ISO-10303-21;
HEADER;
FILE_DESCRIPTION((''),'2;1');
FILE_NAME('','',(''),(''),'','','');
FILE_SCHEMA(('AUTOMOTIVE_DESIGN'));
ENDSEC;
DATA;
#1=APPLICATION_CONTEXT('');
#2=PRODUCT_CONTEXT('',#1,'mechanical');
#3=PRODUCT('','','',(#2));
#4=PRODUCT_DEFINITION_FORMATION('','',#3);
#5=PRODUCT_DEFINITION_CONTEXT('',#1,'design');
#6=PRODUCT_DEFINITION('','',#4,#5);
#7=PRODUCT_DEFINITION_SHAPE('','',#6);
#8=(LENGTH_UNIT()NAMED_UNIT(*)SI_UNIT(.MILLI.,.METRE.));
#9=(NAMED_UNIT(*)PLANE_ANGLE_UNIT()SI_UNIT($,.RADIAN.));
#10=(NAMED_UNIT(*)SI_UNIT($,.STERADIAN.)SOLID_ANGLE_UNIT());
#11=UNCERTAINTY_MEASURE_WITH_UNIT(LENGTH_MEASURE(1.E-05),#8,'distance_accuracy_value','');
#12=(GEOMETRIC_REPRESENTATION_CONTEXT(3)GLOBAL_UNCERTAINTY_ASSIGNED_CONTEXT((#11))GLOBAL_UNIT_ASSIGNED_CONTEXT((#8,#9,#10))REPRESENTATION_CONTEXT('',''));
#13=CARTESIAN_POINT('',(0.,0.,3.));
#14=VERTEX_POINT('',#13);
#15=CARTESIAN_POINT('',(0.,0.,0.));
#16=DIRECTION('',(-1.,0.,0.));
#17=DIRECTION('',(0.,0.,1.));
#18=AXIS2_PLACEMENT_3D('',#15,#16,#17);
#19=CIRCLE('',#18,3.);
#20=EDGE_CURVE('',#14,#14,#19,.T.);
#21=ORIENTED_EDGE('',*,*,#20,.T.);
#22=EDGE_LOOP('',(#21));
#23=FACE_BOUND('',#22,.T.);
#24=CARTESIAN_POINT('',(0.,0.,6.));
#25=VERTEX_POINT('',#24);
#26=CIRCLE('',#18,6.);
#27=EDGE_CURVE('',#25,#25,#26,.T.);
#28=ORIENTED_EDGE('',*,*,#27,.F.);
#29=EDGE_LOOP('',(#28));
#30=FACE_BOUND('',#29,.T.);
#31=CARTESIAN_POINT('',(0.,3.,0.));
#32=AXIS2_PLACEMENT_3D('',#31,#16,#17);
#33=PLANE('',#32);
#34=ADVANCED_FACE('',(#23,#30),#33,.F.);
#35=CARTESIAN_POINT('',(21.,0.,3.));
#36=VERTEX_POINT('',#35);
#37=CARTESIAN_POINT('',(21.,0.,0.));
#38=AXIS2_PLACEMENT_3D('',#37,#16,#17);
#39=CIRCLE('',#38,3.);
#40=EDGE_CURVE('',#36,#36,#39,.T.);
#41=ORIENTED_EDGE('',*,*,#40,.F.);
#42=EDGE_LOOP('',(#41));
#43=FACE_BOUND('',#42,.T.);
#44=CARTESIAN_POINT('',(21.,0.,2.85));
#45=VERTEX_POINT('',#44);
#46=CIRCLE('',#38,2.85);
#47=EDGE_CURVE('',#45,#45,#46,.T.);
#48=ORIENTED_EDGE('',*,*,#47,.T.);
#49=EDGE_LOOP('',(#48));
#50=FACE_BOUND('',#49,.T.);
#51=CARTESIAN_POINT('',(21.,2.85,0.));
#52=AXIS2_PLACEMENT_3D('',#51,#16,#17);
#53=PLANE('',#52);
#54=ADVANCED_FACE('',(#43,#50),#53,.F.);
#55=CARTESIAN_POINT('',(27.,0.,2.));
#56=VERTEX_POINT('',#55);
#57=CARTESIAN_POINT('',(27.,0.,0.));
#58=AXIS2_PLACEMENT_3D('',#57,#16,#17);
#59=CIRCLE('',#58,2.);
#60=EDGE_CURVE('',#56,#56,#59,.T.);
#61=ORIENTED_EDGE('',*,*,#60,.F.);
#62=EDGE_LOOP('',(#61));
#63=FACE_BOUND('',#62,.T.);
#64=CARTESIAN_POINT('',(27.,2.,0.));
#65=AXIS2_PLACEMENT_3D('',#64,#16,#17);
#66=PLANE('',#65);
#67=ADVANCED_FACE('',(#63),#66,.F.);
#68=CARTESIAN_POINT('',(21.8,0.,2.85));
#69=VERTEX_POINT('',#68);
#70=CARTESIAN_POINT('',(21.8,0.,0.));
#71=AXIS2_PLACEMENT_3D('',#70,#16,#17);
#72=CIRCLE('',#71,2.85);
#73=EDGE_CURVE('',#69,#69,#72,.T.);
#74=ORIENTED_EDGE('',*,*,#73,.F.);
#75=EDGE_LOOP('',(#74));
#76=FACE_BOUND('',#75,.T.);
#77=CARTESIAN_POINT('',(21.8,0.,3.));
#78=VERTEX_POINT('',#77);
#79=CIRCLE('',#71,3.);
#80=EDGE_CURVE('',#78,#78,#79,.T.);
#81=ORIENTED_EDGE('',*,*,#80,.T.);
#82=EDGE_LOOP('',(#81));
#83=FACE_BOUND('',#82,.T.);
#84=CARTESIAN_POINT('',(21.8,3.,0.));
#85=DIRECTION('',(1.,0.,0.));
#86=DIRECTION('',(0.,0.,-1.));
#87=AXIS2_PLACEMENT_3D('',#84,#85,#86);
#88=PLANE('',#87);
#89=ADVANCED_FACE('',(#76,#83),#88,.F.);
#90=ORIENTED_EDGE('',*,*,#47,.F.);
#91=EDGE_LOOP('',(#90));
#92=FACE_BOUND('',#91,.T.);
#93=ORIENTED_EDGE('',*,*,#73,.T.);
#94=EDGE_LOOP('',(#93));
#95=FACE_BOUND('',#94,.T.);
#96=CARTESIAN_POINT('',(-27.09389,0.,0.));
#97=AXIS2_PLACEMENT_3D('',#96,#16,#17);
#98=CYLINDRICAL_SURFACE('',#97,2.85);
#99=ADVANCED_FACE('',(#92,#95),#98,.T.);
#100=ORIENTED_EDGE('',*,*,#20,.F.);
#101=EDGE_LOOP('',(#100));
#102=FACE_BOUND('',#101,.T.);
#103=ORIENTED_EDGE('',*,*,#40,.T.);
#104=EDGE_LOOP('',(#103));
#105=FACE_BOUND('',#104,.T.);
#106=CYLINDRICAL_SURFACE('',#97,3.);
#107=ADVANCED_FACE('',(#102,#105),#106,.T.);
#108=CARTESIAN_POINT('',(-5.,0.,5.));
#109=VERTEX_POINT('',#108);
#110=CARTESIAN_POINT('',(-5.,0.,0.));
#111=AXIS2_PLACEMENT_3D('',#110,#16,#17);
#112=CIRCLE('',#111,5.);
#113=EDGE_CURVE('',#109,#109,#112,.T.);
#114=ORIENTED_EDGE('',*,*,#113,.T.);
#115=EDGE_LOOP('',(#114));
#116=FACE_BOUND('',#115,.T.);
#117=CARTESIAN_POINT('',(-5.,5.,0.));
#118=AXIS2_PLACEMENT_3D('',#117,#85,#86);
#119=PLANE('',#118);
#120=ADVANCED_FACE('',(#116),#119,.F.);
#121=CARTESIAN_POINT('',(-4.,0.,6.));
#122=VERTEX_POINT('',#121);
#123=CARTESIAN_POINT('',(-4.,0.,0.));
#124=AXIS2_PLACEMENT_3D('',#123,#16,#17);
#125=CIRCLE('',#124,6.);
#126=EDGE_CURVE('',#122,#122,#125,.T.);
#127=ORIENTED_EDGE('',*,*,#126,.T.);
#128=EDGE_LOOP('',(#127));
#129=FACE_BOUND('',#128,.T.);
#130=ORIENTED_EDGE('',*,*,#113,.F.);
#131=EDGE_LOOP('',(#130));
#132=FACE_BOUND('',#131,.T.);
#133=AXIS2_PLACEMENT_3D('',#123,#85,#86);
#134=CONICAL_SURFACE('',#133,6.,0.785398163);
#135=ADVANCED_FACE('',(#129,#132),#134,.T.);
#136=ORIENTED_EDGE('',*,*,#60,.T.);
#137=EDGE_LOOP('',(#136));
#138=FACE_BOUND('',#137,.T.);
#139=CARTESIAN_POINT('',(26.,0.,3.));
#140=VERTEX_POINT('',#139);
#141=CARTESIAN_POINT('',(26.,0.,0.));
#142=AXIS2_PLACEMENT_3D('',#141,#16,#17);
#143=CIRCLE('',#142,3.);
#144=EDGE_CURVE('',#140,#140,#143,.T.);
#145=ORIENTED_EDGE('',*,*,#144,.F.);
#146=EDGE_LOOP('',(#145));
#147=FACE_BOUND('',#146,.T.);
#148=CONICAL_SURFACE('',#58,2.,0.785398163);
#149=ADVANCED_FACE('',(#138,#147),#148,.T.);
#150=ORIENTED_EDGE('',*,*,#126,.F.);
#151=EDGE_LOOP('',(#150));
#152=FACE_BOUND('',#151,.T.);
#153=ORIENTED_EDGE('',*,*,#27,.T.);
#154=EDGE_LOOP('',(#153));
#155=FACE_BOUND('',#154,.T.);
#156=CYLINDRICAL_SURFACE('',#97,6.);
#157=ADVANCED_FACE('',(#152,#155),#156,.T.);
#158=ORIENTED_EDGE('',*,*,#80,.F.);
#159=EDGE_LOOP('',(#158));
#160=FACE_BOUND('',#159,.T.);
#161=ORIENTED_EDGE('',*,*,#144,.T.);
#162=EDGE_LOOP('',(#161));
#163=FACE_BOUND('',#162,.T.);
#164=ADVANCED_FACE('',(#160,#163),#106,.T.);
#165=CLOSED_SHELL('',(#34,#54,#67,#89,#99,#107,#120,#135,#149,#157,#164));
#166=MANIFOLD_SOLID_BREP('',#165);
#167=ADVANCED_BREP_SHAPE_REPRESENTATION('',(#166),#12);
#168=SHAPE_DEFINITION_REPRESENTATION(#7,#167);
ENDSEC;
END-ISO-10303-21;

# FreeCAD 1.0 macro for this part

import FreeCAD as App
import Part
import Sketcher
from FreeCAD import Vector
Q = App.Units.Quantity


def add_polygon(sketch, points):
    """Adds a closed chain of lines whose ends are joined by coincident constraints."""
    first, n = sketch.GeometryCount, len(points)
    for a, b in zip(points, points[1:] + points[:1]):
        sketch.addGeometry(Part.LineSegment(App.Vector(*a, 0), App.Vector(*b, 0)), False)
    for i in range(n):
        sketch.addConstraint(Sketcher.Constraint("Coincident", first + i, 2, first + (i + 1) % n, 1))

doc = App.newDocument("Part")
body = doc.addObject("PartDesign::Body", "Body")

# Sketch on XY plane
sketch1 = doc.addObject("Sketcher::SketchObject", "Sketch")
body.addObject(sketch1)
sketch1.AttachmentSupport = (doc.XY_Plane, [""])
sketch1.MapMode = "FlatFace"
add_polygon(sketch1, [(0, 3), (0, 6), (-4, 6), (-5, 5), (-5, 0), (27, 0), (27, 2), (26, 3), (21.8, 3), (21.8, 2.85), (21, 2.85), (21, 3)])  # lines 0-11
sketch1.addConstraint([
    Sketcher.Constraint("Vertical", 0),
    Sketcher.Constraint("Horizontal", 1),
    Sketcher.Constraint("Vertical", 3),
    Sketcher.Constraint("Horizontal", 4),
    Sketcher.Constraint("Vertical", 5),
    Sketcher.Constraint("Horizontal", 7),
    Sketcher.Constraint("Vertical", 8),
    Sketcher.Constraint("Horizontal", 9),
    Sketcher.Constraint("Vertical", 10),
    Sketcher.Constraint("Horizontal", 11),
    Sketcher.Constraint("PointOnObject", 0, 2, -2),
    Sketcher.Constraint("PointOnObject", 3, 2, -1),
    Sketcher.Constraint("Perpendicular", 2, 6),
    Sketcher.Constraint("Horizontal", 7, 2, 10, 2),
    Sketcher.Constraint("Equal", 2, 6),
    Sketcher.Constraint("DistanceX", 1, 2, 1, 1, Q("4 mm")),
    Sketcher.Constraint("DistanceX", 4, 1, 4, 2, Q("32 mm")),
    Sketcher.Constraint("DistanceX", 11, 2, 11, 1, Q("21 mm")),
    Sketcher.Constraint("DistanceY", 0, 1, 0, 2, Q("3 mm")),
    Sketcher.Constraint("DistanceY", 3, 2, 3, 1, Q("5 mm")),
    Sketcher.Constraint("DistanceY", 5, 1, 5, 2, Q("2 mm")),
    Sketcher.Constraint("DistanceX", 7, 2, 7, 1, Q("4.2 mm")),
    Sketcher.Constraint("DistanceX", 9, 2, 9, 1, Q("0.8 mm")),
    Sketcher.Constraint("DistanceY", 8, 2, 8, 1, Q("0.15 mm")),
])
revolution = doc.addObject("PartDesign::Revolution", "Revolution")
body.addObject(revolution)
revolution.Profile = sketch1
revolution.ReferenceAxis = (sketch1, ["H_Axis"])
revolution.Angle = 360

doc.recompute()
